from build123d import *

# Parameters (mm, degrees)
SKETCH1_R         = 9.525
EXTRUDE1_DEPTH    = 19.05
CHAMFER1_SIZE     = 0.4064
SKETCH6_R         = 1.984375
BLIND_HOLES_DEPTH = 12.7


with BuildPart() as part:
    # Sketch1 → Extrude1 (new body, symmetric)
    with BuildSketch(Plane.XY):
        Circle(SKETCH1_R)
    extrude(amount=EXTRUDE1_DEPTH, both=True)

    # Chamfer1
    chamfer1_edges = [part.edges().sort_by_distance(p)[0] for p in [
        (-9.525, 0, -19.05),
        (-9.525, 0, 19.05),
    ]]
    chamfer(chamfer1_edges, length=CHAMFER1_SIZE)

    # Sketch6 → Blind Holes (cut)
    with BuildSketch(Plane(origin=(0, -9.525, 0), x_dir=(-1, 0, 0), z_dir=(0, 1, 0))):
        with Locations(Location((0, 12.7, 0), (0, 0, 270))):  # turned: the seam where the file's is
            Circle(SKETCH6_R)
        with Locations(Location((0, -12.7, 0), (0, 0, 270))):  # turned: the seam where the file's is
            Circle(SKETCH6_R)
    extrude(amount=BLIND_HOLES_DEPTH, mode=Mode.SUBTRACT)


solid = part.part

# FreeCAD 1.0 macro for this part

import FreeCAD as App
import Part
import Sketcher
from FreeCAD import Vector
Q = App.Units.Quantity


def edges_at(feature, points):
    """Names of the edges that pass closest to the given points."""
    edges = feature.Shape.Edges
    near = lambda p: min(range(len(edges)), key=lambda i: edges[i].distToShape(Part.Vertex(*p))[0])
    return sorted({f"Edge{near(p) + 1}" for p in points})

doc = App.newDocument("Part")
body = doc.addObject("PartDesign::Body", "Body")

# Sketch on XY plane
sketch1 = body.newObject("Sketcher::SketchObject", "Sketch")
sketch1.AttachmentSupport = (doc.getObject("XY_Plane"), [""])
sketch1.MapMode = "FlatFace"
sketch1.addGeometry(Part.Circle(Vector(0, 0, 0), Vector(0, 0, 1), 10), False)
sketch1.addConstraint([
    Sketcher.Constraint("Coincident", 0, 3, -1, 1),
    Sketcher.Constraint("Diameter", 0, Q("0.75 in")),
])
pad1 = body.newObject("PartDesign::Pad", "Pad")
pad1.Profile = sketch1
pad1.Length = Q("1.5 in")
pad1.Midplane = True
doc.recompute()

chamfer = body.newObject("PartDesign::Chamfer", "Chamfer")
chamfer.Base = (pad1, edges_at(pad1, [(-9.525, 0, -19.05), (-9.525, 0, 19.05)]))
chamfer.Size = Q("0.016 in")

# Sketch on XZ plane
sketch2 = body.newObject("Sketcher::SketchObject", "Sketch001")
sketch2.AttachmentSupport = (doc.getObject("XZ_Plane"), [""])
sketch2.MapMode = "FlatFace"
sketch2.AttachmentOffset = App.Placement(Vector(0, 0, 0.375 * 25.4), App.Rotation())
sketch2.addGeometry([
    Part.Circle(Vector(0, 12.7, 0), Vector(0, 0, 1), 2),
    Part.Circle(Vector(0, -12.7, 0), Vector(0, 0, 1), 2),
], False)
sketch2.addConstraint([
    Sketcher.Constraint("Equal", 0, 1),
    Sketcher.Constraint("Symmetric", 0, 3, 1, 3, -1, 1),
    Sketcher.Constraint("PointOnObject", 0, 3, -2),
    Sketcher.Constraint("Diameter", 0, Q("0.15625 in")),
    Sketcher.Constraint("DistanceY", 1, 3, 0, 3, Q("1 in")),
])
pocket1 = body.newObject("PartDesign::Pocket", "Pocket")
pocket1.Profile = sketch2
pocket1.Length = Q("0.5 in")

doc.recompute()
